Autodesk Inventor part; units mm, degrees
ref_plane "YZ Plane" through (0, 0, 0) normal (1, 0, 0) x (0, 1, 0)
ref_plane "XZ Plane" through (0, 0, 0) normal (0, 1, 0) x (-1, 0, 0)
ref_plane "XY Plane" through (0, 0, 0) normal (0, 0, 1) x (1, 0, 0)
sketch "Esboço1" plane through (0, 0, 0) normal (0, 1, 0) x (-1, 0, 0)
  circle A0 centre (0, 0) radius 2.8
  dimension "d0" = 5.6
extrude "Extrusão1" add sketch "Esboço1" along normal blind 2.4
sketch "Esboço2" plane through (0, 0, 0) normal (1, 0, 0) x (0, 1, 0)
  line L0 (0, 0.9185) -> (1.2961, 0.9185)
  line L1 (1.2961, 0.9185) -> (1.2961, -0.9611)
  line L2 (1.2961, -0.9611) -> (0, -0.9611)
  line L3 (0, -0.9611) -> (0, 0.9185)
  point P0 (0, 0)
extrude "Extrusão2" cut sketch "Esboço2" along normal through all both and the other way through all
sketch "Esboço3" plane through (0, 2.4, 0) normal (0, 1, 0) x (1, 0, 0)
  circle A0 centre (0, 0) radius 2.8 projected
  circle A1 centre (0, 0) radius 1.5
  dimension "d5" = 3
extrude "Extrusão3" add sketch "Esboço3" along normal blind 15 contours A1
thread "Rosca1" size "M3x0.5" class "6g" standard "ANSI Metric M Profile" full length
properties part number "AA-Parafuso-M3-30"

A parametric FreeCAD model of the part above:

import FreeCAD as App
import Part
import Sketcher


def add_polygon(sketch, points):
    """Adds a closed chain of lines whose ends are joined by coincident constraints."""
    first, n = sketch.GeometryCount, len(points)
    for a, b in zip(points, points[1:] + points[:1]):
        sketch.addGeometry(Part.LineSegment(App.Vector(*a, 0), App.Vector(*b, 0)), False)
    for i in range(n):
        sketch.addConstraint(Sketcher.Constraint("Coincident", first + i, 2, first + (i + 1) % n, 1))

doc = App.newDocument("Part")
body = doc.addObject("PartDesign::Body", "Body")

sketch1 = body.newObject("Sketcher::SketchObject", "Sketch")
sketch1.AttachmentSupport = (doc.getObject("XZ_Plane"), [""])
sketch1.MapMode = "FlatFace"
sketch1.addGeometry(Part.Circle(App.Vector(0, 0, 0), App.Vector(0, 0, 1), 2.8), False)
sketch1.addConstraint([
    Sketcher.Constraint("Coincident", 0, 3, -1, 1),
    Sketcher.Constraint("Diameter", 0, 5.6),
])
pad1 = body.newObject("PartDesign::Pad", "Pad")
pad1.Profile = sketch1
pad1.Length = 2.4
pad1.Reversed = True

sketch2 = body.newObject("Sketcher::SketchObject", "Sketch001")
sketch2.AttachmentSupport = (doc.getObject("YZ_Plane"), [""])
sketch2.MapMode = "FlatFace"
add_polygon(sketch2, [(1.2961, 0.9185), (0, 0.9185), (0, -0.9611), (1.2961, -0.9611)])
sketch2.addConstraint([
    Sketcher.Constraint("Horizontal", 0),
    Sketcher.Constraint("Vertical", 1),
    Sketcher.Constraint("Horizontal", 2),
    Sketcher.Constraint("Vertical", 3),
    Sketcher.Constraint("PointOnObject", 0, 2, -2),
    Sketcher.Constraint("DistanceX", 0, 2, 0, 1, 1.296),
    Sketcher.Constraint("DistanceY", 1, 2, 1, 1, 1.8796),
    Sketcher.Constraint("DistanceY", 1, 2, -1, 1, 0.961),
])
pocket1 = body.newObject("PartDesign::Pocket", "Pocket")
pocket1.Profile = sketch2
pocket1.Type = "ThroughAll"
pocket1.Midplane = True

sketch3 = body.newObject("Sketcher::SketchObject", "Sketch002")
sketch3.AttachmentSupport = (doc.getObject("XZ_Plane"), [""])
sketch3.MapMode = "FlatFace"
sketch3.AttachmentOffset = App.Placement(App.Vector(0, 0, -2.4), App.Rotation())
sketch3.addGeometry(Part.Circle(App.Vector(0, 0, 0), App.Vector(0, 0, 1), 1.5), False)
sketch3.addConstraint([
    Sketcher.Constraint("Coincident", 0, 3, -1, 1),
    Sketcher.Constraint("Diameter", 0, 3.0),
])
pad2 = body.newObject("PartDesign::Pad", "Pad001")
pad2.Profile = sketch3
pad2.Length = 15
pad2.Reversed = True

doc.recompute()
